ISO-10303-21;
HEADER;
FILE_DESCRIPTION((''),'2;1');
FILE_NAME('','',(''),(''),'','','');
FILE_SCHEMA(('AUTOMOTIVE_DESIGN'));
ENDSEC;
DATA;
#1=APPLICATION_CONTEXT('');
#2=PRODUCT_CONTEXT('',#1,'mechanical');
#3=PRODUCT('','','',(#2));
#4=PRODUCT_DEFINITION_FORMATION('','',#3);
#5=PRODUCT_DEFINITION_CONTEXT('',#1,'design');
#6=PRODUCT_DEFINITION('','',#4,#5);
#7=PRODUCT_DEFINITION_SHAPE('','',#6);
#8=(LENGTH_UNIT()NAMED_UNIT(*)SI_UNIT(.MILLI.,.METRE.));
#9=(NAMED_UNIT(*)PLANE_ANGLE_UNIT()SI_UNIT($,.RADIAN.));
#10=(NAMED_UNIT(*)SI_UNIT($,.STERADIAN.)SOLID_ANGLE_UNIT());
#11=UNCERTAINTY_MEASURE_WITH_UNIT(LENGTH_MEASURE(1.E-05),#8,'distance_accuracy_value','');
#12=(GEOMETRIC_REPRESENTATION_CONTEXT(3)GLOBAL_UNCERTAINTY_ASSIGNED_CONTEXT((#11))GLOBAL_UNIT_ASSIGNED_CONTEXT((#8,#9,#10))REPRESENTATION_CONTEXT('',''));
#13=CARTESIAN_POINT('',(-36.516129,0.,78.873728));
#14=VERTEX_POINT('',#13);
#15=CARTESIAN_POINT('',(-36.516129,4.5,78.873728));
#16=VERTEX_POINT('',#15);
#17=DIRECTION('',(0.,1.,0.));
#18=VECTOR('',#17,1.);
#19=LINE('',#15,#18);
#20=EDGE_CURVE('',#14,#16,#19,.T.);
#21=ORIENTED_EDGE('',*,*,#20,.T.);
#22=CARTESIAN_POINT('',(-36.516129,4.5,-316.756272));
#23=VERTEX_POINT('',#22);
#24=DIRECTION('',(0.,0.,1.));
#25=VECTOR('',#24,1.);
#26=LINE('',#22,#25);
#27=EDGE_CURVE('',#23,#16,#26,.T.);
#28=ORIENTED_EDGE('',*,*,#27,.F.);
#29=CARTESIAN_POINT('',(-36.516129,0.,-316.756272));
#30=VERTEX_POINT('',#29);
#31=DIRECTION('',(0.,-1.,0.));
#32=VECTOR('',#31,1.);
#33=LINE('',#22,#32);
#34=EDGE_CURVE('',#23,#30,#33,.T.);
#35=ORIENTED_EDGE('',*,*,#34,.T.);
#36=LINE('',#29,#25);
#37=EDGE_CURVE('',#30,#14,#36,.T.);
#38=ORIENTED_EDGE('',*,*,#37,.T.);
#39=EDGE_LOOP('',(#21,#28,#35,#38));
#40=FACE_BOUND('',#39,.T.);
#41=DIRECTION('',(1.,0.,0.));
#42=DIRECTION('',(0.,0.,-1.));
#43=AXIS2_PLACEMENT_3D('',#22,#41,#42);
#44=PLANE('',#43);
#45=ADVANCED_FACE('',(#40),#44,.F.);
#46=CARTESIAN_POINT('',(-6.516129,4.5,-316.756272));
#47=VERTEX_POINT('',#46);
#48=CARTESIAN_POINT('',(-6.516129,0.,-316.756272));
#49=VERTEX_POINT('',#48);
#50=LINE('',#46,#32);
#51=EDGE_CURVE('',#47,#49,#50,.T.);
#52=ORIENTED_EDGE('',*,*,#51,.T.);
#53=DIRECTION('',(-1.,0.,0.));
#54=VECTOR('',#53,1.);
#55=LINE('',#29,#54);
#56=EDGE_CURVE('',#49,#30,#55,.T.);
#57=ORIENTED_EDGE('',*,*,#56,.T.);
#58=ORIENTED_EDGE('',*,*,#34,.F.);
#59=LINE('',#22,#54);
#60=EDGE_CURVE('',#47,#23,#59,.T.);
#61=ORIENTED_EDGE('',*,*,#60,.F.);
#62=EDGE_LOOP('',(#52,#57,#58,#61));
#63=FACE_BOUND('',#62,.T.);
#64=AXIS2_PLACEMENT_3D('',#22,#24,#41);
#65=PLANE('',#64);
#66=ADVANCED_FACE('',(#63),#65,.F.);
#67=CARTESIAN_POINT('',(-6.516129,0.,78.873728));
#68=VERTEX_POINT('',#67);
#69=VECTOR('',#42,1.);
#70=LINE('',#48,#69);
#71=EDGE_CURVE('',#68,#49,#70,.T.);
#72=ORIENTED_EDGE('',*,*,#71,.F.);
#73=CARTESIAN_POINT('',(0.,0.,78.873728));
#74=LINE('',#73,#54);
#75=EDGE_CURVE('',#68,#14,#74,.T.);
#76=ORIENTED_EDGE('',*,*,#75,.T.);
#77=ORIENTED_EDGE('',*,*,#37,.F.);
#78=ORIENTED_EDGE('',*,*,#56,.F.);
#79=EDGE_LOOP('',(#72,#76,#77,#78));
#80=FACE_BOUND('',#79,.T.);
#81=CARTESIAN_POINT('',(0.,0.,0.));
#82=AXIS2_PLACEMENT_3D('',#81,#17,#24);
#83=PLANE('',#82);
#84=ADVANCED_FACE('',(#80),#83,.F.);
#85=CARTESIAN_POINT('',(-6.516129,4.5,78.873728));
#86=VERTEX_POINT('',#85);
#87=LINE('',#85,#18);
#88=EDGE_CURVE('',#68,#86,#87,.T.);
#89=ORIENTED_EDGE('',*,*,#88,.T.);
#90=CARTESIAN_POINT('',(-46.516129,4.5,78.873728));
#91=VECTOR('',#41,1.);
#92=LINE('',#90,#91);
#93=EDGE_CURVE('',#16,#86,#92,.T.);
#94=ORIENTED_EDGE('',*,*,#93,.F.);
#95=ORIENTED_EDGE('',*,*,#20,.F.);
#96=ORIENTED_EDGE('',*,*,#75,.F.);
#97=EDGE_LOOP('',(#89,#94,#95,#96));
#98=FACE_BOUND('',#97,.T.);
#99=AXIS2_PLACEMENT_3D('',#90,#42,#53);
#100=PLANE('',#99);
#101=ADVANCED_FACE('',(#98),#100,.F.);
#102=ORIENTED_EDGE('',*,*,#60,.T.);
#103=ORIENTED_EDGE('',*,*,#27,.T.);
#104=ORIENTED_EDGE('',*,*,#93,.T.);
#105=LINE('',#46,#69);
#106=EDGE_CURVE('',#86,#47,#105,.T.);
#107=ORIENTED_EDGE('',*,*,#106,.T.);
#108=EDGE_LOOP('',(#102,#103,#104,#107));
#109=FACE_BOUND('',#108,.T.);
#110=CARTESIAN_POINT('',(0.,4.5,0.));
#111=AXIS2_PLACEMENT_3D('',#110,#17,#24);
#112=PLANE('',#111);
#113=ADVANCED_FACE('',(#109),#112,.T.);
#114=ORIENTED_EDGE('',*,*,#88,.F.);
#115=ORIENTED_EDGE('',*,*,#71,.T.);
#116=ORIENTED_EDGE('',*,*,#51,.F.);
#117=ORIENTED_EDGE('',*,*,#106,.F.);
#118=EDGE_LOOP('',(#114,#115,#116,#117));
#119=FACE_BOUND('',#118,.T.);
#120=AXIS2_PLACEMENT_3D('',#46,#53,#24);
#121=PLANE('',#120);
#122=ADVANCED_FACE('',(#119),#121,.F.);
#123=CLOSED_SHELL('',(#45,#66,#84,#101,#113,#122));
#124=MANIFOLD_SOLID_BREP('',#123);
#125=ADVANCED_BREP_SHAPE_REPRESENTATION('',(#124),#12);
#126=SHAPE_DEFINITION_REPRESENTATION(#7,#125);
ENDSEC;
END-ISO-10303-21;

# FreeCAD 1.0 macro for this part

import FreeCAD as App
import Part
import Sketcher

V = App.Vector


def add_polygon(sketch, points):
    """Adds a closed chain of lines whose ends are joined by coincident constraints."""
    first, n = sketch.GeometryCount, len(points)
    for a, b in zip(points, points[1:] + points[:1]):
        sketch.addGeometry(Part.LineSegment(App.Vector(*a, 0), App.Vector(*b, 0)), False)
    for i in range(n):
        sketch.addConstraint(Sketcher.Constraint("Coincident", first + i, 2, first + (i + 1) % n, 1))

doc = App.newDocument("Part")
body = doc.addObject("PartDesign::Body", "Body")

# Sketch on XZ plane
sketch1 = doc.addObject("Sketcher::SketchObject", "Sketch")
body.addObject(sketch1)
sketch1.AttachmentSupport = (doc.XZ_Plane, [""])
sketch1.MapMode = "FlatFace"
add_polygon(sketch1, [(-37, -317), (-37, 87), (-7, 87), (-7, -317)])  # lines 0-3
sketch1.addConstraint([
    Sketcher.Constraint("Vertical", 0),
    Sketcher.Constraint("Horizontal", 1),
    Sketcher.Constraint("Vertical", 2),
    Sketcher.Constraint("Horizontal", 3),
    Sketcher.Constraint("DistanceX", 1, 1, 1, 2, 30.0),
    Sketcher.Constraint("DistanceY", 0, 1, 0, 2, 404.0),
    Sketcher.Constraint("DistanceX", 0, 2, -1, 1, 36.516129),
    Sketcher.Constraint("DistanceY", -1, 1, 0, 2, 87.243728),
])
pad1 = doc.addObject("PartDesign::Pad", "Pad")
body.addObject(pad1)
pad1.Profile = sketch1
pad1.Length = 4.5
pad1.Reversed = True

# Sketch on YZ plane
sketch2 = doc.addObject("Sketcher::SketchObject", "Sketch001")
body.addObject(sketch2)
sketch2.AttachmentSupport = (doc.YZ_Plane, [""])
sketch2.MapMode = "FlatFace"
sketch2.AttachmentOffset = App.Placement(V(0, 0, -6.516129), App.Rotation())
add_polygon(sketch2, [(4.5, 87.2), (0, 87.2), (0, 78.9), (4.5, 78.9)])  # lines 0-3
sketch2.addConstraint([
    Sketcher.Constraint("Horizontal", 0),
    Sketcher.Constraint("Vertical", 1),
    Sketcher.Constraint("Horizontal", 2),
    Sketcher.Constraint("Vertical", 3),
    Sketcher.Constraint("PointOnObject", 0, 2, -2),
    Sketcher.Constraint("DistanceX", 0, 2, 0, 1, 4.5),
    Sketcher.Constraint("DistanceY", 1, 2, 1, 1, 8.37),
    Sketcher.Constraint("DistanceY", -1, 1, 0, 2, 87.243728),
])
pocket1 = doc.addObject("PartDesign::Pocket", "Pocket")
body.addObject(pocket1)
pocket1.Profile = sketch2
pocket1.Length = 40

doc.recompute()
